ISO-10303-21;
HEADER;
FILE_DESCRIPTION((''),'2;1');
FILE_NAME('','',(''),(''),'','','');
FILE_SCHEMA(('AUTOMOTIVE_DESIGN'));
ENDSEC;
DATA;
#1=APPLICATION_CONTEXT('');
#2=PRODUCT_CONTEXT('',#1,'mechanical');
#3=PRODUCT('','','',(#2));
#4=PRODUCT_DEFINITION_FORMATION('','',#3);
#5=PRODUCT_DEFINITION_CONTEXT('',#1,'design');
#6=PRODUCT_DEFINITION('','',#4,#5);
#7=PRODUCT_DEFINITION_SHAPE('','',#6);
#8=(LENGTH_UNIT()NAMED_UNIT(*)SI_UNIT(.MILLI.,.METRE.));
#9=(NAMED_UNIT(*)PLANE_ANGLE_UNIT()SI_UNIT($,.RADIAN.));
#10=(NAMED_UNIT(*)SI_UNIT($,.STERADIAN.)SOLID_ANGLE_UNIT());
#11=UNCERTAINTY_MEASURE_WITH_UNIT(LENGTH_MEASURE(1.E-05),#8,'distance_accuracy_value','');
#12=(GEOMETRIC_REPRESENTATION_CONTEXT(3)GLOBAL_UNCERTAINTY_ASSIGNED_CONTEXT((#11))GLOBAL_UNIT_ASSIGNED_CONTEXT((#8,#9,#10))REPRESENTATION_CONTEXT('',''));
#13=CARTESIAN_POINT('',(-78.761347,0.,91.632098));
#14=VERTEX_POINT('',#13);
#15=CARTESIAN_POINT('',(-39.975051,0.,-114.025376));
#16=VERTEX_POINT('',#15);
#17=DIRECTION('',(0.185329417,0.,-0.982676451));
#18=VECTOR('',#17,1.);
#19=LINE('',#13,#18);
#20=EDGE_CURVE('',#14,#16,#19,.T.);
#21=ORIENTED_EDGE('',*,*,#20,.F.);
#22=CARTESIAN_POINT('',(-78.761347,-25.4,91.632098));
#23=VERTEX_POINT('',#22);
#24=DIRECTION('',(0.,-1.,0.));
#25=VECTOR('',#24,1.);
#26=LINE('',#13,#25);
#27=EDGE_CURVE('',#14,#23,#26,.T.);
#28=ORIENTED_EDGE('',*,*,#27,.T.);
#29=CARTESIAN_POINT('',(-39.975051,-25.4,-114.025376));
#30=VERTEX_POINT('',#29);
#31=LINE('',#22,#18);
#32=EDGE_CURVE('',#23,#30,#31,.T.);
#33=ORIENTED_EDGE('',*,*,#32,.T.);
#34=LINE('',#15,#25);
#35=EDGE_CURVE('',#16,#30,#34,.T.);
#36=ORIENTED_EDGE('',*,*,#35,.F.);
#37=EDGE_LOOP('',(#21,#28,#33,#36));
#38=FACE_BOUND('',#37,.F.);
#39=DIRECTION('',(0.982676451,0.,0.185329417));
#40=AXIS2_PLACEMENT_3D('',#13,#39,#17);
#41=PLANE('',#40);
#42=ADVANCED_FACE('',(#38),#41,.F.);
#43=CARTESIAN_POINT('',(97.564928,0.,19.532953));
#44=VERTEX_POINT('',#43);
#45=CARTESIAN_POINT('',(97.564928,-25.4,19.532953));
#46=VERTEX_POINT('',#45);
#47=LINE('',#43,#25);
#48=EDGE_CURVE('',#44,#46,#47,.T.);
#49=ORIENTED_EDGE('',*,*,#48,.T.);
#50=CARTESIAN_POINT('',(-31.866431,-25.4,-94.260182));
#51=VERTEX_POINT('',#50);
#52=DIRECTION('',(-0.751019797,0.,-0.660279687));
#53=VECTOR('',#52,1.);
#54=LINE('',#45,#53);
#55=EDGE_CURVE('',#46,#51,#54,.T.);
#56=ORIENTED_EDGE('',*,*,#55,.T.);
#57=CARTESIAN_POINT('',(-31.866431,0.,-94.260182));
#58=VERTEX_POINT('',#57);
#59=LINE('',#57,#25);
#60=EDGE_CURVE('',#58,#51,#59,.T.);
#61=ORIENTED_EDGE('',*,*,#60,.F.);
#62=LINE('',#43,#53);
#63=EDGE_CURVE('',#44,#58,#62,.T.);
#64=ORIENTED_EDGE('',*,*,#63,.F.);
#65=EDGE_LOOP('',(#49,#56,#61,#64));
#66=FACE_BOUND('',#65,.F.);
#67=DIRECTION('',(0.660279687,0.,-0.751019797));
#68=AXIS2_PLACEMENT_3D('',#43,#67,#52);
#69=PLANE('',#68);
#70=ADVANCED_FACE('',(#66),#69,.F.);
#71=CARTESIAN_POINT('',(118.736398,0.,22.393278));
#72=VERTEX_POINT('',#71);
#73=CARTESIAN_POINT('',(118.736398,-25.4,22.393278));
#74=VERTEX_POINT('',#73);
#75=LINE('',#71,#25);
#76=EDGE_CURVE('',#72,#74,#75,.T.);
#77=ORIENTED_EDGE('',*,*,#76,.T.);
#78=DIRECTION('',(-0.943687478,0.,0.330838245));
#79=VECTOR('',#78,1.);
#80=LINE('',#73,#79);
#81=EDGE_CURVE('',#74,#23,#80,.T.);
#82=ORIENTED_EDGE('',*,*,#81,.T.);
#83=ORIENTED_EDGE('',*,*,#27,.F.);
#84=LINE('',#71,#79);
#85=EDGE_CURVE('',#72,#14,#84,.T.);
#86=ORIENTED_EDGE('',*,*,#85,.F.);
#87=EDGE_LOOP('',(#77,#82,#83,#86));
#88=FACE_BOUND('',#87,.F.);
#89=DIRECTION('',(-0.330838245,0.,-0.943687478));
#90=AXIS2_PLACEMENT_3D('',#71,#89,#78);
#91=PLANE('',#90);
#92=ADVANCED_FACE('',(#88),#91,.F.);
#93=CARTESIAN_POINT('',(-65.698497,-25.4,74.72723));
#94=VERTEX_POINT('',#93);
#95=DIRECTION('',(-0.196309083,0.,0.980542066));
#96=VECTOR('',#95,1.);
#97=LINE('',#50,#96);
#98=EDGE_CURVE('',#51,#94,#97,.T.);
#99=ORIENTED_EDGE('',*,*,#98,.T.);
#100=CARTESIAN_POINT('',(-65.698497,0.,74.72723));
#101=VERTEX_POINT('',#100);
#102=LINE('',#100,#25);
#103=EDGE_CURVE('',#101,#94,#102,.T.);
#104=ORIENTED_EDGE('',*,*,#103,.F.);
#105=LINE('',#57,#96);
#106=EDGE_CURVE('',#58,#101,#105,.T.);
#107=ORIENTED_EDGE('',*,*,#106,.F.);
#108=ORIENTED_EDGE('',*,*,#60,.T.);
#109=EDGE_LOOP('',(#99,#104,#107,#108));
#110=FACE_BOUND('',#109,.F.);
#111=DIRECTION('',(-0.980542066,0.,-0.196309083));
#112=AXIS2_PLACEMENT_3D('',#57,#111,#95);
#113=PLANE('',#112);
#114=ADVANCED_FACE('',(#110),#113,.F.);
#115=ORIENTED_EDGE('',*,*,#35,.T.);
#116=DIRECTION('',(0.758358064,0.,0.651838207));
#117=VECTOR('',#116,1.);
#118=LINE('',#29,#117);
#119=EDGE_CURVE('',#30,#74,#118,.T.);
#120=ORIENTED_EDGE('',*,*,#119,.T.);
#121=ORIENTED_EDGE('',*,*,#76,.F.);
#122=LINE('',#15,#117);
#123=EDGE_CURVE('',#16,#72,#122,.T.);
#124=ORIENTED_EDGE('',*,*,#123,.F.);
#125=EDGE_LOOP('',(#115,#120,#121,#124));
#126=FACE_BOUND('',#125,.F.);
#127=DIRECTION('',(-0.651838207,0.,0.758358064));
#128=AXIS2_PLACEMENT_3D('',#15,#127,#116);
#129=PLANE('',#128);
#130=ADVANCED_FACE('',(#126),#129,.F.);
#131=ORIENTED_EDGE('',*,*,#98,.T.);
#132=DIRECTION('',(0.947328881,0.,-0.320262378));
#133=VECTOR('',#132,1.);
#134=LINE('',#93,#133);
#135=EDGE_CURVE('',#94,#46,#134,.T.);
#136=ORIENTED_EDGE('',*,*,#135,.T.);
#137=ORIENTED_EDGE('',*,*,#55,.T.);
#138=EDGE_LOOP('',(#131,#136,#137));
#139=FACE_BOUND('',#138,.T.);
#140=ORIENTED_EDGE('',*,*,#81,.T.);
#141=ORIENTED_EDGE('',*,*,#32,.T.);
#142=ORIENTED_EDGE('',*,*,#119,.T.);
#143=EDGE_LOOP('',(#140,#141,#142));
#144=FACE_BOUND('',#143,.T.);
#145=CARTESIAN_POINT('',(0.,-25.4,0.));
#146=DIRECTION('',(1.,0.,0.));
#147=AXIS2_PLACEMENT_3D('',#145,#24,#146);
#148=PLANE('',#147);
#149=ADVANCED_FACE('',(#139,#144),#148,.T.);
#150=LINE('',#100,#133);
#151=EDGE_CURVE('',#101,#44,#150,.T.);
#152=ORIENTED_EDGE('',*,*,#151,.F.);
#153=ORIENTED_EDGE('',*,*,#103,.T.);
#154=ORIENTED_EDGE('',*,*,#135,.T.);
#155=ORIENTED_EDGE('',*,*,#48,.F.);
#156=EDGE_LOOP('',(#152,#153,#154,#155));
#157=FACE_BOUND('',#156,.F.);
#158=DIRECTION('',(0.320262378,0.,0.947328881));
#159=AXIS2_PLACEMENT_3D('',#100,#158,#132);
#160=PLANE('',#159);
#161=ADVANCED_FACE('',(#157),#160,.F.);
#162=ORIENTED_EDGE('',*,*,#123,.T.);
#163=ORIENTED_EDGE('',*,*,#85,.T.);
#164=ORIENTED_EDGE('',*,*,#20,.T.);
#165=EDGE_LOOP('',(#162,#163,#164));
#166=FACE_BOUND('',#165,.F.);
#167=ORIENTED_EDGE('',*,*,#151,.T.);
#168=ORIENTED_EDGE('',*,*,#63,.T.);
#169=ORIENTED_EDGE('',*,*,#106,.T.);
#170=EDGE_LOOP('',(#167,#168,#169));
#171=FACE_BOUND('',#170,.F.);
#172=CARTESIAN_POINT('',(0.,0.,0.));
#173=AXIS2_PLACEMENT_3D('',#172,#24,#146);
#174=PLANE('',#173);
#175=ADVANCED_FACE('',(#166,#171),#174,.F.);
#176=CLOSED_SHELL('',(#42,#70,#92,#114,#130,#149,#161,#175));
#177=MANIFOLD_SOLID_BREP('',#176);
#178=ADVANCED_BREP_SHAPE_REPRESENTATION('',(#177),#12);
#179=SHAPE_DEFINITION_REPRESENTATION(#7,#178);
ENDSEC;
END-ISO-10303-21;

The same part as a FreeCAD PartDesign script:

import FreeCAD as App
import Part
import Sketcher

V = App.Vector
Q = App.Units.Quantity


def add_polygon(sketch, points):
    """Adds a closed chain of lines whose ends are joined by coincident constraints."""
    first, n = sketch.GeometryCount, len(points)
    for a, b in zip(points, points[1:] + points[:1]):
        sketch.addGeometry(Part.LineSegment(App.Vector(*a, 0), App.Vector(*b, 0)), False)
    for i in range(n):
        sketch.addConstraint(Sketcher.Constraint("Coincident", first + i, 2, first + (i + 1) % n, 1))

doc = App.newDocument("Part")
body = doc.addObject("PartDesign::Body", "Body")

# Sketch on XZ plane
sketch1 = doc.addObject("Sketcher::SketchObject", "Sketch")
body.addObject(sketch1)
sketch1.AttachmentSupport = (doc.XZ_Plane, [""])
sketch1.MapMode = "FlatFace"
add_polygon(sketch1, [(-40, -114), (119, 22), (-79, 92)])  # lines 0-2
add_polygon(sketch1, [(-32, -94), (-66, 75), (98, 20)])  # lines 3-5
sketch1.addConstraint([
    Sketcher.Constraint("Equal", 0, 1),
    Sketcher.Constraint("Equal", 1, 2),
    Sketcher.Constraint("Equal", 3, 4),
    Sketcher.Constraint("Equal", 4, 5),
    Sketcher.Constraint("Distance", 1, 209.282999),
    Sketcher.Constraint("DistanceY", -1, 1, 1, 2, 91.632098),
    Sketcher.Constraint("Distance", 3, 172.340808),
    Sketcher.Constraint("DistanceX", 2, 2, -1, 1, 39.975051),
    Sketcher.Constraint("DistanceY", -1, 1, 3, 2, 74.72723),
    Sketcher.Constraint("DistanceX", 5, 2, -1, 1, 31.866431),
    Sketcher.Constraint("DistanceY", 5, 2, -1, 1, 94.260182),
    Sketcher.Constraint("DistanceY", 0, 2, 1, 2, 69.23882),
])
pad1 = doc.addObject("PartDesign::Pad", "Pad")
body.addObject(pad1)
pad1.Profile = sketch1
pad1.Length = Q("1 in")

doc.recompute()
